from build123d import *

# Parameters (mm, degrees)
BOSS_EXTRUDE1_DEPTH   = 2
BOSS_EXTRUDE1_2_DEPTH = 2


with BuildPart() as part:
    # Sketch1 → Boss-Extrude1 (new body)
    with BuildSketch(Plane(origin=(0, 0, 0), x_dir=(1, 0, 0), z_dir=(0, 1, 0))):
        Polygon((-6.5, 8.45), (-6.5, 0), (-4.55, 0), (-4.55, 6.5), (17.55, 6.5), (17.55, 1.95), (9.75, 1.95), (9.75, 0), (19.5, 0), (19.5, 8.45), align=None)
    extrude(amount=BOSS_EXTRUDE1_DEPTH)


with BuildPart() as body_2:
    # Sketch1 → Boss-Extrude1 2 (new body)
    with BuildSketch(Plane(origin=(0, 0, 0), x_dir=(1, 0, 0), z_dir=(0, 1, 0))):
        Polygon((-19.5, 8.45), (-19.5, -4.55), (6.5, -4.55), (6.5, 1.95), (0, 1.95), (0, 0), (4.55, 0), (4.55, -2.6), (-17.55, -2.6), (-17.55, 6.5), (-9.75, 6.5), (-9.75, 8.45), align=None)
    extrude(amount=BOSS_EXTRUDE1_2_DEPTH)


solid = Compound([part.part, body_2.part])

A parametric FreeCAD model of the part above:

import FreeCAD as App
import Part
import Sketcher
from FreeCAD import Vector

doc = App.newDocument("Part")
params = doc.addObject("Spreadsheet::Sheet", "Params")
for row, (alias, value) in enumerate([
    ("sketch1_width", "26 mm"),
    ("sketch1_width2", "22.1 mm"),
    ("sketch1_width3", "7.8 mm"),
    ("sketch1_height", "6.5 mm"),
    ("sketch1_width4", "1.95 mm"),
    ("pad1_length", "2 mm"),
    ("sketch2_width", "26 mm"),
    ("sketch2_height", "13 mm"),
    ("sketch2_width2", "6.5 mm"),
    ("sketch2_width3", "22.1 mm"),
    ("sketch2_width4", "7.8 mm"),
    ("pad2_length", "2 mm"),
], start=1):
    params.set(f"A{row}", alias)
    params.set(f"B{row}", "=" + value)
    params.setAlias(f"B{row}", alias)

body = doc.addObject("PartDesign::Body", "Body")

# Sketch on XZ plane
sketch1 = body.newObject("Sketcher::SketchObject", "Sketch")
sketch1.AttachmentSupport = (doc.getObject("XZ_Plane"), [""])
sketch1.MapMode = "FlatFace"
sketch1.addGeometry(Part.LineSegment(Vector(-6.5, -8.4, 0), Vector(-6.5, 0, 0)), False)
sketch1.addGeometry(Part.LineSegment(Vector(-6.5, 0, 0), Vector(-4.5, 0, 0)), False)
sketch1.addGeometry(Part.LineSegment(Vector(-4.5, 0, 0), Vector(-4.5, -6.5, 0)), False)
sketch1.addGeometry(Part.LineSegment(Vector(-4.5, -6.5, 0), Vector(17.6, -6.5, 0)), False)
sketch1.addGeometry(Part.LineSegment(Vector(17.6, -6.5, 0), Vector(17.6, -1.9, 0)), False)
sketch1.addGeometry(Part.LineSegment(Vector(17.6, -1.9, 0), Vector(9.8, -1.9, 0)), False)
sketch1.addGeometry(Part.LineSegment(Vector(9.8, -1.9, 0), Vector(9.8, 0, 0)), False)
sketch1.addGeometry(Part.LineSegment(Vector(9.8, 0, 0), Vector(19.5, 0, 0)), False)
sketch1.addGeometry(Part.LineSegment(Vector(19.5, 0, 0), Vector(19.5, -8.4, 0)), False)
sketch1.addGeometry(Part.LineSegment(Vector(19.5, -8.4, 0), Vector(-6.5, -8.4, 0)), False)
sketch1.addConstraint(Sketcher.Constraint("Coincident", 0, 2, 1, 1))
sketch1.addConstraint(Sketcher.Constraint("Coincident", 1, 2, 2, 1))
sketch1.addConstraint(Sketcher.Constraint("Coincident", 2, 2, 3, 1))
sketch1.addConstraint(Sketcher.Constraint("Coincident", 3, 2, 4, 1))
sketch1.addConstraint(Sketcher.Constraint("Coincident", 4, 2, 5, 1))
sketch1.addConstraint(Sketcher.Constraint("Coincident", 5, 2, 6, 1))
sketch1.addConstraint(Sketcher.Constraint("Coincident", 6, 2, 7, 1))
sketch1.addConstraint(Sketcher.Constraint("Coincident", 7, 2, 8, 1))
sketch1.addConstraint(Sketcher.Constraint("Coincident", 8, 2, 9, 1))
sketch1.addConstraint(Sketcher.Constraint("Coincident", 9, 2, 0, 1))
sketch1.addConstraint(Sketcher.Constraint("Vertical", 0))
sketch1.addConstraint(Sketcher.Constraint("Horizontal", 1))
sketch1.addConstraint(Sketcher.Constraint("Vertical", 2))
sketch1.addConstraint(Sketcher.Constraint("Horizontal", 3))
sketch1.addConstraint(Sketcher.Constraint("Vertical", 4))
sketch1.addConstraint(Sketcher.Constraint("Horizontal", 5))
sketch1.addConstraint(Sketcher.Constraint("Vertical", 6))
sketch1.addConstraint(Sketcher.Constraint("Horizontal", 7))
sketch1.addConstraint(Sketcher.Constraint("Vertical", 8))
sketch1.addConstraint(Sketcher.Constraint("Horizontal", 9))
sketch1.addConstraint(Sketcher.Constraint("PointOnObject", 0, 2, -1))
sketch1.addConstraint(Sketcher.Constraint("PointOnObject", 6, 2, -1))
sketch1.addConstraint(Sketcher.Constraint("Equal", 1, 6))
sketch1.addConstraint(Sketcher.Constraint("DistanceX", 9, 2, 9, 1, 26.0))
sketch1.addConstraint(Sketcher.Constraint("DistanceX", 3, 1, 3, 2, 22.1))
sketch1.addConstraint(Sketcher.Constraint("DistanceX", 5, 2, 5, 1, 7.8))
sketch1.addConstraint(Sketcher.Constraint("DistanceY", 2, 2, 2, 1, 6.5))
sketch1.addConstraint(Sketcher.Constraint("DistanceX", 1, 1, 1, 2, 1.95))
sketch1.addConstraint(Sketcher.Constraint("DistanceY", 0, 1, 0, 2, 8.45))
sketch1.addConstraint(Sketcher.Constraint("DistanceX", 0, 2, -1, 1, 6.5))
sketch1.setExpression("Constraints[23]", "Params.sketch1_width")
sketch1.setExpression("Constraints[24]", "Params.sketch1_width2")
sketch1.setExpression("Constraints[25]", "Params.sketch1_width3")
sketch1.setExpression("Constraints[26]", "Params.sketch1_height")
sketch1.setExpression("Constraints[27]", "Params.sketch1_width4")
pad1 = body.newObject("PartDesign::Pad", "Pad")
pad1.Profile = sketch1
pad1.setExpression("Length", "Params.pad1_length")
pad1.Reversed = True
body2 = doc.addObject("PartDesign::Body", "Body001")

# Sketch on XZ plane
sketch2 = body2.newObject("Sketcher::SketchObject", "Sketch001")
sketch2.AttachmentSupport = (doc.getObject("XZ_Plane001"), [""])
sketch2.MapMode = "FlatFace"
sketch2.addGeometry(Part.LineSegment(Vector(-19.5, -8.4, 0), Vector(-19.5, 4.5, 0)), False)
sketch2.addGeometry(Part.LineSegment(Vector(-19.5, 4.5, 0), Vector(6.5, 4.5, 0)), False)
sketch2.addGeometry(Part.LineSegment(Vector(6.5, 4.5, 0), Vector(6.5, -1.9, 0)), False)
sketch2.addGeometry(Part.LineSegment(Vector(6.5, -1.9, 0), Vector(0, -1.9, 0)), False)
sketch2.addGeometry(Part.LineSegment(Vector(0, -1.9, 0), Vector(0, 0, 0)), False)
sketch2.addGeometry(Part.LineSegment(Vector(0, 0, 0), Vector(4.5, 0, 0)), False)
sketch2.addGeometry(Part.LineSegment(Vector(4.5, 0, 0), Vector(4.5, 2.6, 0)), False)
sketch2.addGeometry(Part.LineSegment(Vector(4.5, 2.6, 0), Vector(-17.6, 2.6, 0)), False)
sketch2.addGeometry(Part.LineSegment(Vector(-17.6, 2.6, 0), Vector(-17.6, -6.5, 0)), False)
sketch2.addGeometry(Part.LineSegment(Vector(-17.6, -6.5, 0), Vector(-9.8, -6.5, 0)), False)
sketch2.addGeometry(Part.LineSegment(Vector(-9.8, -6.5, 0), Vector(-9.8, -8.4, 0)), False)
sketch2.addGeometry(Part.LineSegment(Vector(-9.8, -8.4, 0), Vector(-19.5, -8.4, 0)), False)
sketch2.addConstraint(Sketcher.Constraint("Coincident", 0, 2, 1, 1))
sketch2.addConstraint(Sketcher.Constraint("Coincident", 1, 2, 2, 1))
sketch2.addConstraint(Sketcher.Constraint("Coincident", 2, 2, 3, 1))
sketch2.addConstraint(Sketcher.Constraint("Coincident", 3, 2, 4, 1))
sketch2.addConstraint(Sketcher.Constraint("Coincident", 4, 2, 5, 1))
sketch2.addConstraint(Sketcher.Constraint("Coincident", 5, 2, 6, 1))
sketch2.addConstraint(Sketcher.Constraint("Coincident", 6, 2, 7, 1))
sketch2.addConstraint(Sketcher.Constraint("Coincident", 7, 2, 8, 1))
sketch2.addConstraint(Sketcher.Constraint("Coincident", 8, 2, 9, 1))
sketch2.addConstraint(Sketcher.Constraint("Coincident", 9, 2, 10, 1))
sketch2.addConstraint(Sketcher.Constraint("Coincident", 10, 2, 11, 1))
sketch2.addConstraint(Sketcher.Constraint("Coincident", 11, 2, 0, 1))
sketch2.addConstraint(Sketcher.Constraint("Vertical", 0))
sketch2.addConstraint(Sketcher.Constraint("Horizontal", 1))
sketch2.addConstraint(Sketcher.Constraint("Vertical", 2))
sketch2.addConstraint(Sketcher.Constraint("Horizontal", 3))
sketch2.addConstraint(Sketcher.Constraint("Vertical", 4))
sketch2.addConstraint(Sketcher.Constraint("Horizontal", 5))
sketch2.addConstraint(Sketcher.Constraint("Vertical", 6))
sketch2.addConstraint(Sketcher.Constraint("Horizontal", 7))
sketch2.addConstraint(Sketcher.Constraint("Vertical", 8))
sketch2.addConstraint(Sketcher.Constraint("Horizontal", 9))
sketch2.addConstraint(Sketcher.Constraint("Vertical", 10))
sketch2.addConstraint(Sketcher.Constraint("Horizontal", 11))
sketch2.addConstraint(Sketcher.Constraint("Coincident", 4, 2, -1, 1))
sketch2.addConstraint(Sketcher.Constraint("Equal", 3, 2))
sketch2.addConstraint(Sketcher.Constraint("Equal", 4, 10))
sketch2.addConstraint(Sketcher.Constraint("DistanceX", 1, 1, 1, 2, 26.0))
sketch2.addConstraint(Sketcher.Constraint("DistanceY", 0, 1, 0, 2, 13.0))
sketch2.addConstraint(Sketcher.Constraint("DistanceX", 3, 2, 3, 1, 6.5))
sketch2.addConstraint(Sketcher.Constraint("DistanceX", 7, 2, 7, 1, 22.1))
sketch2.addConstraint(Sketcher.Constraint("DistanceX", 9, 1, 9, 2, 7.8))
sketch2.addConstraint(Sketcher.Constraint("DistanceY", 6, 1, 6, 2, 2.6))
sketch2.addConstraint(Sketcher.Constraint("DistanceX", 5, 1, 5, 2, 4.55))
sketch2.addConstraint(Sketcher.Constraint("DistanceY", 4, 1, 4, 2, 1.95))
sketch2.setExpression("Constraints[27]", "Params.sketch2_width")
sketch2.setExpression("Constraints[28]", "Params.sketch2_height")
sketch2.setExpression("Constraints[29]", "Params.sketch2_width2")
sketch2.setExpression("Constraints[30]", "Params.sketch2_width3")
sketch2.setExpression("Constraints[31]", "Params.sketch2_width4")
pad2 = body2.newObject("PartDesign::Pad", "Pad001")
pad2.Profile = sketch2
pad2.setExpression("Length", "Params.pad2_length")
pad2.Reversed = True

doc.recompute()
